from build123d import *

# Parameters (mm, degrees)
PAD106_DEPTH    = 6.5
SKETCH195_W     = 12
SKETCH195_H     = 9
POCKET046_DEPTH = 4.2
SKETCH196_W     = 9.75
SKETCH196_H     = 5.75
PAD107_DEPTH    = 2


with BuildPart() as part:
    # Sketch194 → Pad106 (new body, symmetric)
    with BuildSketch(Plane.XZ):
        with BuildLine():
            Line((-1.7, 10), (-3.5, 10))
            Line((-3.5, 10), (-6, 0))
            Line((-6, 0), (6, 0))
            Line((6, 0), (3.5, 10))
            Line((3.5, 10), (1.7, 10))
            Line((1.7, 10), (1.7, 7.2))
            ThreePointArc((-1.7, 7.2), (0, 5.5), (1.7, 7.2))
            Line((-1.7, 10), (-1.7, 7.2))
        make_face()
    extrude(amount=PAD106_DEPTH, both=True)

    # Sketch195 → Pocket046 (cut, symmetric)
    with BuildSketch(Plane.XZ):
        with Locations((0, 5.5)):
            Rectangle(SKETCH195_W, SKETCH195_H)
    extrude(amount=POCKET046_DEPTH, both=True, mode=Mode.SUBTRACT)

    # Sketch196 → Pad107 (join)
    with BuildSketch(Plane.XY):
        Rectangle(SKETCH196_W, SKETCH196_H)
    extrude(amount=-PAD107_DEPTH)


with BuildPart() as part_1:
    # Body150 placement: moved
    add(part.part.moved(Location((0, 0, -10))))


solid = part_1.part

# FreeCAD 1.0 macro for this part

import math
import FreeCAD as App
import Part
import Sketcher

V = App.Vector


def add_polygon(sketch, points):
    """Adds a closed chain of lines whose ends are joined by coincident constraints."""
    first, n = sketch.GeometryCount, len(points)
    for a, b in zip(points, points[1:] + points[:1]):
        sketch.addGeometry(Part.LineSegment(App.Vector(*a, 0), App.Vector(*b, 0)), False)
    for i in range(n):
        sketch.addConstraint(Sketcher.Constraint("Coincident", first + i, 2, first + (i + 1) % n, 1))

doc = App.newDocument("Part")
body = doc.addObject("PartDesign::Body", "Body")

# Sketch on XZ plane
sketch1 = body.newObject("Sketcher::SketchObject", "Sketch")
sketch1.AttachmentSupport = (doc.getObject("XZ_Plane"), [""])
sketch1.MapMode = "FlatFace"
sketch1.addGeometry([
    Part.LineSegment(V(-1.7, 10, 0), V(-3.5, 10, 0)),  # 0
    Part.LineSegment(V(-3.5, 10, 0), V(-6, 0, 0)),  # 1
    Part.LineSegment(V(-6, 0, 0), V(6, 0, 0)),  # 2
    Part.LineSegment(V(6, 0, 0), V(3.5, 10, 0)),  # 3
    Part.LineSegment(V(3.5, 10, 0), V(1.7, 10, 0)),  # 4
    Part.LineSegment(V(1.7, 10, 0), V(1.7, 7.2, 0)),  # 5
    Part.ArcOfCircle(Part.Circle(V(0, 7.2, 0), V(0, 0, 1), 1.7), math.radians(180), math.radians(360)),  # 6
    Part.LineSegment(V(-1.7, 7.2, 0), V(-1.7, 10, 0)),  # 7
], False)
sketch1.addConstraint([
    Sketcher.Constraint("Coincident", 0, 2, 1, 1),
    Sketcher.Constraint("Coincident", 1, 2, 2, 1),
    Sketcher.Constraint("Coincident", 2, 2, 3, 1),
    Sketcher.Constraint("Coincident", 3, 2, 4, 1),
    Sketcher.Constraint("Coincident", 4, 2, 5, 1),
    Sketcher.Constraint("Tangent", 5, 2, 6, 2),
    Sketcher.Constraint("Tangent", 6, 1, 7, 1),
    Sketcher.Constraint("Coincident", 7, 2, 0, 1),
    Sketcher.Constraint("Horizontal", 0),
    Sketcher.Constraint("Horizontal", 2),
    Sketcher.Constraint("Horizontal", 4),
    Sketcher.Constraint("Vertical", 5),
    Sketcher.Constraint("Vertical", 7),
    Sketcher.Constraint("Symmetric", 1, 2, 2, 2, -1, 1),
    Sketcher.Constraint("Symmetric", 0, 2, 3, 2, -2),
    Sketcher.Constraint("PointOnObject", 6, 3, -2),
    Sketcher.Constraint("Radius", 6, 1.7),
    Sketcher.Constraint("DistanceX", 2, 1, 2, 2, 12.0),
    Sketcher.Constraint("DistanceX", 0, 2, 0, 1, 1.8),
    Sketcher.Constraint("DistanceY", 5, 2, 5, 1, 2.8),
    Sketcher.Constraint("DistanceY", -1, 1, 0, 2, 10.0),
])
pad1 = body.newObject("PartDesign::Pad", "Pad")
pad1.Profile = sketch1
pad1.Length = 13
pad1.Midplane = True

# Sketch on XZ plane
sketch2 = body.newObject("Sketcher::SketchObject", "Sketch001")
sketch2.AttachmentSupport = (doc.getObject("XZ_Plane"), [""])
sketch2.MapMode = "FlatFace"
add_polygon(sketch2, [(-6, 10), (-6, 1), (6, 1), (6, 10)])  # lines 0-3
sketch2.addConstraint([
    Sketcher.Constraint("Vertical", 0),
    Sketcher.Constraint("Horizontal", 1),
    Sketcher.Constraint("Vertical", 2),
    Sketcher.Constraint("Horizontal", 3),
    Sketcher.Constraint("DistanceX", 1, 1, 1, 2, 12.0),
    Sketcher.Constraint("DistanceY", 0, 2, 0, 1, 9.0),
    Sketcher.Constraint("DistanceX", 0, 2, -1, 1, 6.0),
    Sketcher.Constraint("DistanceY", -1, 1, 0, 2, 1.0),
])
pocket1 = body.newObject("PartDesign::Pocket", "Pocket")
pocket1.Profile = sketch2
pocket1.Length = 8.4
pocket1.Midplane = True

# Sketch on XY plane
sketch3 = body.newObject("Sketcher::SketchObject", "Sketch002")
sketch3.AttachmentSupport = (doc.getObject("XY_Plane"), [""])
sketch3.MapMode = "FlatFace"
add_polygon(sketch3, [(-4.875, 2.875), (-4.875, -2.875), (4.875, -2.875), (4.875, 2.875)])  # lines 0-3
sketch3.addConstraint([
    Sketcher.Constraint("Vertical", 0),
    Sketcher.Constraint("Horizontal", 1),
    Sketcher.Constraint("Vertical", 2),
    Sketcher.Constraint("Horizontal", 3),
    Sketcher.Constraint("Symmetric", 0, 2, 2, 2, -1, 1),
    Sketcher.Constraint("DistanceX", 1, 1, 1, 2, 9.75),
    Sketcher.Constraint("DistanceY", 0, 2, 0, 1, 5.75),
])
pad2 = body.newObject("PartDesign::Pad", "Pad001")
pad2.Profile = sketch3
pad2.Length = 2
pad2.Reversed = True
body2 = doc.addObject("PartDesign::Body", "Body001")
doc.recompute()

body.Placement = App.Placement(V(0, 0, -10), App.Rotation(V(0, 0, 1), 0))
boolean = body2.newObject("PartDesign::Boolean", "Boolean")
boolean.Type = "Fuse"
boolean.addObjects([body])

doc.recompute()
